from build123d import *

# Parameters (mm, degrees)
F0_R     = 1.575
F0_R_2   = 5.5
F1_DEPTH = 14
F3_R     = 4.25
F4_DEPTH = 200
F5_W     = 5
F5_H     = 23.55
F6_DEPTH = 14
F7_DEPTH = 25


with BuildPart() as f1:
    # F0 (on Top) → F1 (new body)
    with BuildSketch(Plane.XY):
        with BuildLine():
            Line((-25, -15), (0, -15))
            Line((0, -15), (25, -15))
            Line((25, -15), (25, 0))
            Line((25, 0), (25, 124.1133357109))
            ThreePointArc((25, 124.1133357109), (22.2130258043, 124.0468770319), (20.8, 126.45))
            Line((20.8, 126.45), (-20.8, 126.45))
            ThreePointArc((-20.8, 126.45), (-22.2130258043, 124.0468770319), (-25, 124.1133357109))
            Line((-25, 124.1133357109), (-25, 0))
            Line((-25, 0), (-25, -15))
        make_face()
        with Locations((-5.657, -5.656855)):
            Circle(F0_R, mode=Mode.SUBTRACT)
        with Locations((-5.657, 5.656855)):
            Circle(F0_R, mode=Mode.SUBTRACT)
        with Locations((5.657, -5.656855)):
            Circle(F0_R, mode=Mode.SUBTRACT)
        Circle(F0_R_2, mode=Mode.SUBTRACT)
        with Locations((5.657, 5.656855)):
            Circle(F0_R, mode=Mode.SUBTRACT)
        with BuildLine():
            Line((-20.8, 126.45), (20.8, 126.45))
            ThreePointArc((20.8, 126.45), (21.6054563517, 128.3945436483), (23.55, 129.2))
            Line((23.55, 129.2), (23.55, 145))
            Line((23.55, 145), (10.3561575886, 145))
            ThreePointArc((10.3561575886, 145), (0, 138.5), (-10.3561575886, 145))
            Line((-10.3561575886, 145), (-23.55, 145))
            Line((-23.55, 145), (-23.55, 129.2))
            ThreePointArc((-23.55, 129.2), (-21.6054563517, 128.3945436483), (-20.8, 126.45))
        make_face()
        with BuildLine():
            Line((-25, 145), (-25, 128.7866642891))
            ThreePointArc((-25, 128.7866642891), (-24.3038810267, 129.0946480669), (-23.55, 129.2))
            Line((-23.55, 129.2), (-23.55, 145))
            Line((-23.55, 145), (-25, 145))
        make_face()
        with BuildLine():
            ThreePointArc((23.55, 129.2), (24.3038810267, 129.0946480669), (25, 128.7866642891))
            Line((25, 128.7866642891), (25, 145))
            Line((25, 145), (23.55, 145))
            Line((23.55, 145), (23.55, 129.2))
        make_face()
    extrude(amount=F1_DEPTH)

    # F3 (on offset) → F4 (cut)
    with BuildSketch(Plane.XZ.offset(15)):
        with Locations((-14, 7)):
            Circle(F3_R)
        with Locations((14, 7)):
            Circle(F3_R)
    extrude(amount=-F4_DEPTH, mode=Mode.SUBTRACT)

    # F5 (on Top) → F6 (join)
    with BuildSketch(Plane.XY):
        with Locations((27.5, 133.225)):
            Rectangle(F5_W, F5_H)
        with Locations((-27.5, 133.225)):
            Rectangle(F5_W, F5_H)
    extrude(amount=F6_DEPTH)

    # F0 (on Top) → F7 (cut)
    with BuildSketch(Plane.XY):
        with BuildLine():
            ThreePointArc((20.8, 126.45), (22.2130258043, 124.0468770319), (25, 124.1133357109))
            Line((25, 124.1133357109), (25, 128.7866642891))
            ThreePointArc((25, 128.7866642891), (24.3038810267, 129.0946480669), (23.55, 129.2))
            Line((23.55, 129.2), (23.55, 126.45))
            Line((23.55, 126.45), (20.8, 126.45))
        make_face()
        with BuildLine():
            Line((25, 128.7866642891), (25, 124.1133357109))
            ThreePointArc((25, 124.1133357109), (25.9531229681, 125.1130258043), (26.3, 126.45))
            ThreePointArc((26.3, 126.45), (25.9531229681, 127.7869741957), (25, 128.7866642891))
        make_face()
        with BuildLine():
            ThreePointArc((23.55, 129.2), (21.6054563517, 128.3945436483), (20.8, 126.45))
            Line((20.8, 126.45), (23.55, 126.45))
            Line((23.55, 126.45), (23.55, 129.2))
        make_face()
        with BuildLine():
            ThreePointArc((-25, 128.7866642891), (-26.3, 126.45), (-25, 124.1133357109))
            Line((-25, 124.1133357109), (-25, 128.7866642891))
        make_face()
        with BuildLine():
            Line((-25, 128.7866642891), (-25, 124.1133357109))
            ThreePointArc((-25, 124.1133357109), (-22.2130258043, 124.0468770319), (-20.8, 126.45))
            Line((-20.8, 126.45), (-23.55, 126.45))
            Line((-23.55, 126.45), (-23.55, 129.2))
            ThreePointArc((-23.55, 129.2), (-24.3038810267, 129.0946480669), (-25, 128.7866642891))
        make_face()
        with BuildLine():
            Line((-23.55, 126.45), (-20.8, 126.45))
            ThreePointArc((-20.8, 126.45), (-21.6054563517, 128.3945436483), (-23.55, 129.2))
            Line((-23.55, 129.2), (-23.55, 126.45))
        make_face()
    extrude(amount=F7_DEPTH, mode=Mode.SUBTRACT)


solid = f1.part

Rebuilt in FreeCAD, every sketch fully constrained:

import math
import FreeCAD as App
import Part
import Sketcher

V = App.Vector

doc = App.newDocument("Part")
body = doc.addObject("PartDesign::Body", "Body")

# Sketch on XY plane
sketch1 = body.newObject("Sketcher::SketchObject", "Sketch")
sketch1.AttachmentSupport = (doc.getObject("XY_Plane"), [""])
sketch1.MapMode = "FlatFace"
sketch1.addGeometry([
    Part.LineSegment(V(-25, -15, 0), V(25, -15, 0)),  # 0
    Part.LineSegment(V(25, -15, 0), V(25, 124.1, 0)),  # 1
    Part.ArcOfCircle(Part.Circle(V(23.6, 126.5, 0), V(0, 0, 1), 2.8), math.radians(180), math.radians(302)),  # 2
    Part.ArcOfCircle(Part.Circle(V(23.6, 126.5, 0), V(0, 0, 1), 2.8), math.radians(90), math.radians(180)),  # 3
    Part.ArcOfCircle(Part.Circle(V(23.6, 126.5, 0), V(0, 0, 1), 2.7), math.radians(58), math.radians(90)),  # 4
    Part.LineSegment(V(25, 128.8, 0), V(25, 145, 0)),  # 5
    Part.LineSegment(V(25, 145, 0), V(10.4, 145, 0)),  # 6
    Part.ArcOfCircle(Part.Circle(V(0, 150, 0), V(0, 0, 1), 11.5), math.radians(-154), math.radians(-26)),  # 7
    Part.LineSegment(V(-10.4, 145, 0), V(-25, 145, 0)),  # 8
    Part.LineSegment(V(-25, 145, 0), V(-25, 128.8, 0)),  # 9
    Part.ArcOfCircle(Part.Circle(V(-23.6, 126.5, 0), V(0, 0, 1), 2.7), math.radians(90), math.radians(122)),  # 10
    Part.ArcOfCircle(Part.Circle(V(-23.6, 126.5, 0), V(0, 0, 1), 2.8), math.radians(0), math.radians(90)),  # 11
    Part.ArcOfCircle(Part.Circle(V(-23.6, 126.5, 0), V(0, 0, 1), 2.8), math.radians(-122), math.radians(0)),  # 12
    Part.LineSegment(V(-25, 124.1, 0), V(-25, -15, 0)),  # 13
    Part.Circle(V(-5.7, -5.7, 0), V(0, 0, 1), 1.6),  # 14
    Part.Circle(V(5.7, -5.7, 0), V(0, 0, 1), 1.6),  # 15
    Part.Circle(V(-5.7, 5.7, 0), V(0, 0, 1), 1.6),  # 16
    Part.Circle(V(0, 0, 0), V(0, 0, 1), 5.5),  # 17
    Part.Circle(V(5.7, 5.7, 0), V(0, 0, 1), 1.6),  # 18
], False)
sketch1.addConstraint([
    Sketcher.Constraint("Coincident", 0, 2, 1, 1),
    Sketcher.Constraint("Coincident", 1, 2, 2, 2),
    Sketcher.Constraint("Tangent", 2, 1, 3, 2),
    Sketcher.Constraint("Tangent", 3, 1, 4, 2),
    Sketcher.Constraint("Coincident", 4, 1, 5, 1),
    Sketcher.Constraint("Coincident", 5, 2, 6, 1),
    Sketcher.Constraint("Coincident", 6, 2, 7, 2),
    Sketcher.Constraint("Coincident", 7, 1, 8, 1),
    Sketcher.Constraint("Coincident", 8, 2, 9, 1),
    Sketcher.Constraint("Coincident", 9, 2, 10, 2),
    Sketcher.Constraint("Tangent", 10, 1, 11, 2),
    Sketcher.Constraint("Tangent", 11, 1, 12, 2),
    Sketcher.Constraint("Coincident", 12, 1, 13, 1),
    Sketcher.Constraint("Coincident", 13, 2, 0, 1),
    Sketcher.Constraint("Horizontal", 0),
    Sketcher.Constraint("Vertical", 1),
    Sketcher.Constraint("Vertical", 5),
    Sketcher.Constraint("Horizontal", 6),
    Sketcher.Constraint("Horizontal", 8),
    Sketcher.Constraint("Vertical", 9),
    Sketcher.Constraint("Vertical", 13),
    Sketcher.Constraint("Coincident", 17, 3, -1, 1),
    Sketcher.Constraint("Coincident", 4, 3, 2, 3),
    Sketcher.Constraint("Coincident", 12, 3, 10, 3),
    Sketcher.Constraint("Equal", 4, 10),
    Sketcher.Constraint("Equal", 14, 15),
    Sketcher.Constraint("Equal", 15, 16),
    Sketcher.Constraint("Equal", 16, 18),
    Sketcher.Constraint("Symmetric", 15, 3, 16, 3, -1, 1),
    Sketcher.Constraint("Symmetric", 14, 3, 18, 3, -1, 1),
    Sketcher.Constraint("Symmetric", 2, 3, 10, 3, -2),
    Sketcher.Constraint("Symmetric", 14, 3, 15, 3, -2),
    Sketcher.Constraint("Symmetric", 6, 2, 7, 1, -2),
    Sketcher.Constraint("Horizontal", 12, 3, 2, 1),
    Sketcher.Constraint("Horizontal", 4, 1, 9, 2),
    Sketcher.Constraint("Horizontal", 2, 1, 11, 1),
    Sketcher.Constraint("Horizontal", 1, 2, 12, 1),
    Sketcher.Constraint("Vertical", 4, 3, 3, 1),
    Sketcher.Constraint("Vertical", 1, 2, 4, 1),
    Sketcher.Constraint("Vertical", 12, 3, 10, 1),
    Sketcher.Constraint("Diameter", 17, 11.0),
    Sketcher.Constraint("Radius", 7, 11.5),
    Sketcher.Constraint("Diameter", 14, 3.15),
    Sketcher.Constraint("DistanceX", 0, 1, 0, 2, 50.0),
    Sketcher.Constraint("Radius", 2, 2.75),
    Sketcher.Constraint("DistanceY", -1, 1, 7, 3, 150.0),
    Sketcher.Constraint("DistanceY", 0, 2, -1, 1, 15.0),
    Sketcher.Constraint("DistanceY", -1, 1, 5, 2, 145.0),
    Sketcher.Constraint("DistanceX", -1, 1, 2, 1, 20.8),
    Sketcher.Constraint("DistanceY", -1, 1, 3, 1, 129.2),
    Sketcher.Constraint("DistanceX", 14, 3, -1, 1, 5.657),
    Sketcher.Constraint("DistanceY", 14, 3, 16, 3, 11.31371),
])
pad1 = body.newObject("PartDesign::Pad", "Pad")
pad1.Profile = sketch1
pad1.Length = 14

# Sketch on XZ plane
sketch2 = body.newObject("Sketcher::SketchObject", "Sketch001")
sketch2.AttachmentSupport = (doc.getObject("XZ_Plane"), [""])
sketch2.MapMode = "FlatFace"
sketch2.AttachmentOffset = App.Placement(V(0, 0, 15), App.Rotation())
sketch2.addGeometry([
    Part.Circle(V(-14, 7, 0), V(0, 0, 1), 4.2),
    Part.Circle(V(14, 7, 0), V(0, 0, 1), 4.2),
], False)
sketch2.addConstraint([
    Sketcher.Constraint("Equal", 0, 1),
    Sketcher.Constraint("Symmetric", 0, 3, 1, 3, -2),
    Sketcher.Constraint("Diameter", 0, 8.5),
    Sketcher.Constraint("DistanceX", 0, 3, -1, 1, 14.0),
    Sketcher.Constraint("DistanceY", -1, 1, 0, 3, 7.0),
])
pocket1 = body.newObject("PartDesign::Pocket", "Pocket")
pocket1.Profile = sketch2
pocket1.Length = 200

# Sketch on XY plane
sketch3 = body.newObject("Sketcher::SketchObject", "Sketch002")
sketch3.AttachmentSupport = (doc.getObject("XY_Plane"), [""])
sketch3.MapMode = "FlatFace"
sketch3.addGeometry([
    Part.LineSegment(V(25, 145, 0), V(25, 121, 0)),  # 0
    Part.LineSegment(V(25, 121, 0), V(30, 121, 0)),  # 1
    Part.LineSegment(V(30, 121, 0), V(30, 145, 0)),  # 2
    Part.LineSegment(V(30, 145, 0), V(25, 145, 0)),  # 3
    Part.LineSegment(V(-30, 145, 0), V(-30, 121, 0)),  # 4
    Part.LineSegment(V(-30, 121, 0), V(-25, 121, 0)),  # 5
    Part.LineSegment(V(-25, 121, 0), V(-25, 145, 0)),  # 6
    Part.LineSegment(V(-25, 145, 0), V(-30, 145, 0)),  # 7
], False)
sketch3.addConstraint([
    Sketcher.Constraint("Coincident", 0, 2, 1, 1),
    Sketcher.Constraint("Coincident", 1, 2, 2, 1),
    Sketcher.Constraint("Coincident", 2, 2, 3, 1),
    Sketcher.Constraint("Coincident", 3, 2, 0, 1),
    Sketcher.Constraint("Coincident", 4, 2, 5, 1),
    Sketcher.Constraint("Coincident", 5, 2, 6, 1),
    Sketcher.Constraint("Coincident", 6, 2, 7, 1),
    Sketcher.Constraint("Coincident", 7, 2, 4, 1),
    Sketcher.Constraint("Vertical", 0),
    Sketcher.Constraint("Horizontal", 1),
    Sketcher.Constraint("Vertical", 2),
    Sketcher.Constraint("Horizontal", 3),
    Sketcher.Constraint("Vertical", 4),
    Sketcher.Constraint("Horizontal", 5),
    Sketcher.Constraint("Vertical", 6),
    Sketcher.Constraint("Horizontal", 7),
    Sketcher.Constraint("Symmetric", 1, 2, 4, 2, -2),
    Sketcher.Constraint("Symmetric", 3, 2, 6, 2, -2),
    Sketcher.Constraint("DistanceX", 1, 1, 1, 2, 5.0),
    Sketcher.Constraint("DistanceX", -1, 1, 0, 2, 25.0),
    Sketcher.Constraint("DistanceY", -1, 1, 2, 2, 145.0),
    Sketcher.Constraint("DistanceY", 0, 2, 0, 1, 23.55),
])
pad2 = body.newObject("PartDesign::Pad", "Pad001")
pad2.Profile = sketch3
pad2.Length = 14

# Sketch on XY plane
sketch4 = body.newObject("Sketcher::SketchObject", "Sketch003")
sketch4.AttachmentSupport = (doc.getObject("XY_Plane"), [""])
sketch4.MapMode = "FlatFace"
sketch4.addGeometry([
    Part.ArcOfCircle(Part.Circle(V(23.6, 126.5, 0), V(0, 0, 1), 2.8), math.radians(180), math.radians(302)),  # 0
    Part.ArcOfCircle(Part.Circle(V(23.6, 126.5, 0), V(0, 0, 1), 2.8), math.radians(-58), math.radians(0)),  # 1
    Part.ArcOfCircle(Part.Circle(V(23.6, 126.5, 0), V(0, 0, 1), 2.8), math.radians(0), math.radians(58)),  # 2
    Part.ArcOfCircle(Part.Circle(V(23.6, 126.5, 0), V(0, 0, 1), 2.7), math.radians(58), math.radians(90)),  # 3
    Part.ArcOfCircle(Part.Circle(V(23.6, 126.5, 0), V(0, 0, 1), 2.8), math.radians(90), math.radians(180)),  # 4
    Part.ArcOfCircle(Part.Circle(V(-23.6, 126.5, 0), V(0, 0, 1), 2.8), math.radians(122), math.radians(238)),  # 5
    Part.ArcOfCircle(Part.Circle(V(-23.6, 126.5, 0), V(0, 0, 1), 2.8), math.radians(-122), math.radians(0)),  # 6
    Part.ArcOfCircle(Part.Circle(V(-23.6, 126.5, 0), V(0, 0, 1), 2.8), math.radians(0), math.radians(90)),  # 7
    Part.ArcOfCircle(Part.Circle(V(-23.6, 126.5, 0), V(0, 0, 1), 2.7), math.radians(90), math.radians(122)),  # 8
], False)
sketch4.addConstraint([
    Sketcher.Constraint("Tangent", 0, 2, 1, 1),
    Sketcher.Constraint("Tangent", 1, 2, 2, 1),
    Sketcher.Constraint("Tangent", 2, 2, 3, 1),
    Sketcher.Constraint("Tangent", 3, 2, 4, 1),
    Sketcher.Constraint("Tangent", 4, 2, 0, 1),
    Sketcher.Constraint("Tangent", 5, 2, 6, 1),
    Sketcher.Constraint("Tangent", 6, 2, 7, 1),
    Sketcher.Constraint("Tangent", 7, 2, 8, 1),
    Sketcher.Constraint("Tangent", 8, 2, 5, 1),
    Sketcher.Constraint("Coincident", 2, 3, 0, 3),
    Sketcher.Constraint("Equal", 4, 5),
    Sketcher.Constraint("Equal", 5, 6),
    Sketcher.Constraint("Symmetric", 0, 3, 5, 3, -2),
    Sketcher.Constraint("Horizontal", 8, 3, 1, 2),
    Sketcher.Constraint("Horizontal", 1, 2, 4, 2),
    Sketcher.Constraint("Horizontal", 0, 2, 5, 2),
    Sketcher.Constraint("Horizontal", 4, 2, 6, 2),
    Sketcher.Constraint("Horizontal", 2, 2, 8, 2),
    Sketcher.Constraint("Vertical", 0, 2, 2, 2),
    Sketcher.Constraint("Vertical", 4, 3, 3, 2),
    Sketcher.Constraint("Vertical", 8, 3, 7, 2),
    Sketcher.Constraint("Radius", 0, 2.75),
    Sketcher.Constraint("DistanceX", -1, 1, 0, 2, 25.0),
    Sketcher.Constraint("DistanceX", -1, 1, 1, 2, 26.3),
    Sketcher.Constraint("DistanceY", -1, 1, 3, 2, 129.2),
])
pocket2 = body.newObject("PartDesign::Pocket", "Pocket001")
pocket2.Profile = sketch4
pocket2.Length = 25
pocket2.Reversed = True

doc.recompute()
